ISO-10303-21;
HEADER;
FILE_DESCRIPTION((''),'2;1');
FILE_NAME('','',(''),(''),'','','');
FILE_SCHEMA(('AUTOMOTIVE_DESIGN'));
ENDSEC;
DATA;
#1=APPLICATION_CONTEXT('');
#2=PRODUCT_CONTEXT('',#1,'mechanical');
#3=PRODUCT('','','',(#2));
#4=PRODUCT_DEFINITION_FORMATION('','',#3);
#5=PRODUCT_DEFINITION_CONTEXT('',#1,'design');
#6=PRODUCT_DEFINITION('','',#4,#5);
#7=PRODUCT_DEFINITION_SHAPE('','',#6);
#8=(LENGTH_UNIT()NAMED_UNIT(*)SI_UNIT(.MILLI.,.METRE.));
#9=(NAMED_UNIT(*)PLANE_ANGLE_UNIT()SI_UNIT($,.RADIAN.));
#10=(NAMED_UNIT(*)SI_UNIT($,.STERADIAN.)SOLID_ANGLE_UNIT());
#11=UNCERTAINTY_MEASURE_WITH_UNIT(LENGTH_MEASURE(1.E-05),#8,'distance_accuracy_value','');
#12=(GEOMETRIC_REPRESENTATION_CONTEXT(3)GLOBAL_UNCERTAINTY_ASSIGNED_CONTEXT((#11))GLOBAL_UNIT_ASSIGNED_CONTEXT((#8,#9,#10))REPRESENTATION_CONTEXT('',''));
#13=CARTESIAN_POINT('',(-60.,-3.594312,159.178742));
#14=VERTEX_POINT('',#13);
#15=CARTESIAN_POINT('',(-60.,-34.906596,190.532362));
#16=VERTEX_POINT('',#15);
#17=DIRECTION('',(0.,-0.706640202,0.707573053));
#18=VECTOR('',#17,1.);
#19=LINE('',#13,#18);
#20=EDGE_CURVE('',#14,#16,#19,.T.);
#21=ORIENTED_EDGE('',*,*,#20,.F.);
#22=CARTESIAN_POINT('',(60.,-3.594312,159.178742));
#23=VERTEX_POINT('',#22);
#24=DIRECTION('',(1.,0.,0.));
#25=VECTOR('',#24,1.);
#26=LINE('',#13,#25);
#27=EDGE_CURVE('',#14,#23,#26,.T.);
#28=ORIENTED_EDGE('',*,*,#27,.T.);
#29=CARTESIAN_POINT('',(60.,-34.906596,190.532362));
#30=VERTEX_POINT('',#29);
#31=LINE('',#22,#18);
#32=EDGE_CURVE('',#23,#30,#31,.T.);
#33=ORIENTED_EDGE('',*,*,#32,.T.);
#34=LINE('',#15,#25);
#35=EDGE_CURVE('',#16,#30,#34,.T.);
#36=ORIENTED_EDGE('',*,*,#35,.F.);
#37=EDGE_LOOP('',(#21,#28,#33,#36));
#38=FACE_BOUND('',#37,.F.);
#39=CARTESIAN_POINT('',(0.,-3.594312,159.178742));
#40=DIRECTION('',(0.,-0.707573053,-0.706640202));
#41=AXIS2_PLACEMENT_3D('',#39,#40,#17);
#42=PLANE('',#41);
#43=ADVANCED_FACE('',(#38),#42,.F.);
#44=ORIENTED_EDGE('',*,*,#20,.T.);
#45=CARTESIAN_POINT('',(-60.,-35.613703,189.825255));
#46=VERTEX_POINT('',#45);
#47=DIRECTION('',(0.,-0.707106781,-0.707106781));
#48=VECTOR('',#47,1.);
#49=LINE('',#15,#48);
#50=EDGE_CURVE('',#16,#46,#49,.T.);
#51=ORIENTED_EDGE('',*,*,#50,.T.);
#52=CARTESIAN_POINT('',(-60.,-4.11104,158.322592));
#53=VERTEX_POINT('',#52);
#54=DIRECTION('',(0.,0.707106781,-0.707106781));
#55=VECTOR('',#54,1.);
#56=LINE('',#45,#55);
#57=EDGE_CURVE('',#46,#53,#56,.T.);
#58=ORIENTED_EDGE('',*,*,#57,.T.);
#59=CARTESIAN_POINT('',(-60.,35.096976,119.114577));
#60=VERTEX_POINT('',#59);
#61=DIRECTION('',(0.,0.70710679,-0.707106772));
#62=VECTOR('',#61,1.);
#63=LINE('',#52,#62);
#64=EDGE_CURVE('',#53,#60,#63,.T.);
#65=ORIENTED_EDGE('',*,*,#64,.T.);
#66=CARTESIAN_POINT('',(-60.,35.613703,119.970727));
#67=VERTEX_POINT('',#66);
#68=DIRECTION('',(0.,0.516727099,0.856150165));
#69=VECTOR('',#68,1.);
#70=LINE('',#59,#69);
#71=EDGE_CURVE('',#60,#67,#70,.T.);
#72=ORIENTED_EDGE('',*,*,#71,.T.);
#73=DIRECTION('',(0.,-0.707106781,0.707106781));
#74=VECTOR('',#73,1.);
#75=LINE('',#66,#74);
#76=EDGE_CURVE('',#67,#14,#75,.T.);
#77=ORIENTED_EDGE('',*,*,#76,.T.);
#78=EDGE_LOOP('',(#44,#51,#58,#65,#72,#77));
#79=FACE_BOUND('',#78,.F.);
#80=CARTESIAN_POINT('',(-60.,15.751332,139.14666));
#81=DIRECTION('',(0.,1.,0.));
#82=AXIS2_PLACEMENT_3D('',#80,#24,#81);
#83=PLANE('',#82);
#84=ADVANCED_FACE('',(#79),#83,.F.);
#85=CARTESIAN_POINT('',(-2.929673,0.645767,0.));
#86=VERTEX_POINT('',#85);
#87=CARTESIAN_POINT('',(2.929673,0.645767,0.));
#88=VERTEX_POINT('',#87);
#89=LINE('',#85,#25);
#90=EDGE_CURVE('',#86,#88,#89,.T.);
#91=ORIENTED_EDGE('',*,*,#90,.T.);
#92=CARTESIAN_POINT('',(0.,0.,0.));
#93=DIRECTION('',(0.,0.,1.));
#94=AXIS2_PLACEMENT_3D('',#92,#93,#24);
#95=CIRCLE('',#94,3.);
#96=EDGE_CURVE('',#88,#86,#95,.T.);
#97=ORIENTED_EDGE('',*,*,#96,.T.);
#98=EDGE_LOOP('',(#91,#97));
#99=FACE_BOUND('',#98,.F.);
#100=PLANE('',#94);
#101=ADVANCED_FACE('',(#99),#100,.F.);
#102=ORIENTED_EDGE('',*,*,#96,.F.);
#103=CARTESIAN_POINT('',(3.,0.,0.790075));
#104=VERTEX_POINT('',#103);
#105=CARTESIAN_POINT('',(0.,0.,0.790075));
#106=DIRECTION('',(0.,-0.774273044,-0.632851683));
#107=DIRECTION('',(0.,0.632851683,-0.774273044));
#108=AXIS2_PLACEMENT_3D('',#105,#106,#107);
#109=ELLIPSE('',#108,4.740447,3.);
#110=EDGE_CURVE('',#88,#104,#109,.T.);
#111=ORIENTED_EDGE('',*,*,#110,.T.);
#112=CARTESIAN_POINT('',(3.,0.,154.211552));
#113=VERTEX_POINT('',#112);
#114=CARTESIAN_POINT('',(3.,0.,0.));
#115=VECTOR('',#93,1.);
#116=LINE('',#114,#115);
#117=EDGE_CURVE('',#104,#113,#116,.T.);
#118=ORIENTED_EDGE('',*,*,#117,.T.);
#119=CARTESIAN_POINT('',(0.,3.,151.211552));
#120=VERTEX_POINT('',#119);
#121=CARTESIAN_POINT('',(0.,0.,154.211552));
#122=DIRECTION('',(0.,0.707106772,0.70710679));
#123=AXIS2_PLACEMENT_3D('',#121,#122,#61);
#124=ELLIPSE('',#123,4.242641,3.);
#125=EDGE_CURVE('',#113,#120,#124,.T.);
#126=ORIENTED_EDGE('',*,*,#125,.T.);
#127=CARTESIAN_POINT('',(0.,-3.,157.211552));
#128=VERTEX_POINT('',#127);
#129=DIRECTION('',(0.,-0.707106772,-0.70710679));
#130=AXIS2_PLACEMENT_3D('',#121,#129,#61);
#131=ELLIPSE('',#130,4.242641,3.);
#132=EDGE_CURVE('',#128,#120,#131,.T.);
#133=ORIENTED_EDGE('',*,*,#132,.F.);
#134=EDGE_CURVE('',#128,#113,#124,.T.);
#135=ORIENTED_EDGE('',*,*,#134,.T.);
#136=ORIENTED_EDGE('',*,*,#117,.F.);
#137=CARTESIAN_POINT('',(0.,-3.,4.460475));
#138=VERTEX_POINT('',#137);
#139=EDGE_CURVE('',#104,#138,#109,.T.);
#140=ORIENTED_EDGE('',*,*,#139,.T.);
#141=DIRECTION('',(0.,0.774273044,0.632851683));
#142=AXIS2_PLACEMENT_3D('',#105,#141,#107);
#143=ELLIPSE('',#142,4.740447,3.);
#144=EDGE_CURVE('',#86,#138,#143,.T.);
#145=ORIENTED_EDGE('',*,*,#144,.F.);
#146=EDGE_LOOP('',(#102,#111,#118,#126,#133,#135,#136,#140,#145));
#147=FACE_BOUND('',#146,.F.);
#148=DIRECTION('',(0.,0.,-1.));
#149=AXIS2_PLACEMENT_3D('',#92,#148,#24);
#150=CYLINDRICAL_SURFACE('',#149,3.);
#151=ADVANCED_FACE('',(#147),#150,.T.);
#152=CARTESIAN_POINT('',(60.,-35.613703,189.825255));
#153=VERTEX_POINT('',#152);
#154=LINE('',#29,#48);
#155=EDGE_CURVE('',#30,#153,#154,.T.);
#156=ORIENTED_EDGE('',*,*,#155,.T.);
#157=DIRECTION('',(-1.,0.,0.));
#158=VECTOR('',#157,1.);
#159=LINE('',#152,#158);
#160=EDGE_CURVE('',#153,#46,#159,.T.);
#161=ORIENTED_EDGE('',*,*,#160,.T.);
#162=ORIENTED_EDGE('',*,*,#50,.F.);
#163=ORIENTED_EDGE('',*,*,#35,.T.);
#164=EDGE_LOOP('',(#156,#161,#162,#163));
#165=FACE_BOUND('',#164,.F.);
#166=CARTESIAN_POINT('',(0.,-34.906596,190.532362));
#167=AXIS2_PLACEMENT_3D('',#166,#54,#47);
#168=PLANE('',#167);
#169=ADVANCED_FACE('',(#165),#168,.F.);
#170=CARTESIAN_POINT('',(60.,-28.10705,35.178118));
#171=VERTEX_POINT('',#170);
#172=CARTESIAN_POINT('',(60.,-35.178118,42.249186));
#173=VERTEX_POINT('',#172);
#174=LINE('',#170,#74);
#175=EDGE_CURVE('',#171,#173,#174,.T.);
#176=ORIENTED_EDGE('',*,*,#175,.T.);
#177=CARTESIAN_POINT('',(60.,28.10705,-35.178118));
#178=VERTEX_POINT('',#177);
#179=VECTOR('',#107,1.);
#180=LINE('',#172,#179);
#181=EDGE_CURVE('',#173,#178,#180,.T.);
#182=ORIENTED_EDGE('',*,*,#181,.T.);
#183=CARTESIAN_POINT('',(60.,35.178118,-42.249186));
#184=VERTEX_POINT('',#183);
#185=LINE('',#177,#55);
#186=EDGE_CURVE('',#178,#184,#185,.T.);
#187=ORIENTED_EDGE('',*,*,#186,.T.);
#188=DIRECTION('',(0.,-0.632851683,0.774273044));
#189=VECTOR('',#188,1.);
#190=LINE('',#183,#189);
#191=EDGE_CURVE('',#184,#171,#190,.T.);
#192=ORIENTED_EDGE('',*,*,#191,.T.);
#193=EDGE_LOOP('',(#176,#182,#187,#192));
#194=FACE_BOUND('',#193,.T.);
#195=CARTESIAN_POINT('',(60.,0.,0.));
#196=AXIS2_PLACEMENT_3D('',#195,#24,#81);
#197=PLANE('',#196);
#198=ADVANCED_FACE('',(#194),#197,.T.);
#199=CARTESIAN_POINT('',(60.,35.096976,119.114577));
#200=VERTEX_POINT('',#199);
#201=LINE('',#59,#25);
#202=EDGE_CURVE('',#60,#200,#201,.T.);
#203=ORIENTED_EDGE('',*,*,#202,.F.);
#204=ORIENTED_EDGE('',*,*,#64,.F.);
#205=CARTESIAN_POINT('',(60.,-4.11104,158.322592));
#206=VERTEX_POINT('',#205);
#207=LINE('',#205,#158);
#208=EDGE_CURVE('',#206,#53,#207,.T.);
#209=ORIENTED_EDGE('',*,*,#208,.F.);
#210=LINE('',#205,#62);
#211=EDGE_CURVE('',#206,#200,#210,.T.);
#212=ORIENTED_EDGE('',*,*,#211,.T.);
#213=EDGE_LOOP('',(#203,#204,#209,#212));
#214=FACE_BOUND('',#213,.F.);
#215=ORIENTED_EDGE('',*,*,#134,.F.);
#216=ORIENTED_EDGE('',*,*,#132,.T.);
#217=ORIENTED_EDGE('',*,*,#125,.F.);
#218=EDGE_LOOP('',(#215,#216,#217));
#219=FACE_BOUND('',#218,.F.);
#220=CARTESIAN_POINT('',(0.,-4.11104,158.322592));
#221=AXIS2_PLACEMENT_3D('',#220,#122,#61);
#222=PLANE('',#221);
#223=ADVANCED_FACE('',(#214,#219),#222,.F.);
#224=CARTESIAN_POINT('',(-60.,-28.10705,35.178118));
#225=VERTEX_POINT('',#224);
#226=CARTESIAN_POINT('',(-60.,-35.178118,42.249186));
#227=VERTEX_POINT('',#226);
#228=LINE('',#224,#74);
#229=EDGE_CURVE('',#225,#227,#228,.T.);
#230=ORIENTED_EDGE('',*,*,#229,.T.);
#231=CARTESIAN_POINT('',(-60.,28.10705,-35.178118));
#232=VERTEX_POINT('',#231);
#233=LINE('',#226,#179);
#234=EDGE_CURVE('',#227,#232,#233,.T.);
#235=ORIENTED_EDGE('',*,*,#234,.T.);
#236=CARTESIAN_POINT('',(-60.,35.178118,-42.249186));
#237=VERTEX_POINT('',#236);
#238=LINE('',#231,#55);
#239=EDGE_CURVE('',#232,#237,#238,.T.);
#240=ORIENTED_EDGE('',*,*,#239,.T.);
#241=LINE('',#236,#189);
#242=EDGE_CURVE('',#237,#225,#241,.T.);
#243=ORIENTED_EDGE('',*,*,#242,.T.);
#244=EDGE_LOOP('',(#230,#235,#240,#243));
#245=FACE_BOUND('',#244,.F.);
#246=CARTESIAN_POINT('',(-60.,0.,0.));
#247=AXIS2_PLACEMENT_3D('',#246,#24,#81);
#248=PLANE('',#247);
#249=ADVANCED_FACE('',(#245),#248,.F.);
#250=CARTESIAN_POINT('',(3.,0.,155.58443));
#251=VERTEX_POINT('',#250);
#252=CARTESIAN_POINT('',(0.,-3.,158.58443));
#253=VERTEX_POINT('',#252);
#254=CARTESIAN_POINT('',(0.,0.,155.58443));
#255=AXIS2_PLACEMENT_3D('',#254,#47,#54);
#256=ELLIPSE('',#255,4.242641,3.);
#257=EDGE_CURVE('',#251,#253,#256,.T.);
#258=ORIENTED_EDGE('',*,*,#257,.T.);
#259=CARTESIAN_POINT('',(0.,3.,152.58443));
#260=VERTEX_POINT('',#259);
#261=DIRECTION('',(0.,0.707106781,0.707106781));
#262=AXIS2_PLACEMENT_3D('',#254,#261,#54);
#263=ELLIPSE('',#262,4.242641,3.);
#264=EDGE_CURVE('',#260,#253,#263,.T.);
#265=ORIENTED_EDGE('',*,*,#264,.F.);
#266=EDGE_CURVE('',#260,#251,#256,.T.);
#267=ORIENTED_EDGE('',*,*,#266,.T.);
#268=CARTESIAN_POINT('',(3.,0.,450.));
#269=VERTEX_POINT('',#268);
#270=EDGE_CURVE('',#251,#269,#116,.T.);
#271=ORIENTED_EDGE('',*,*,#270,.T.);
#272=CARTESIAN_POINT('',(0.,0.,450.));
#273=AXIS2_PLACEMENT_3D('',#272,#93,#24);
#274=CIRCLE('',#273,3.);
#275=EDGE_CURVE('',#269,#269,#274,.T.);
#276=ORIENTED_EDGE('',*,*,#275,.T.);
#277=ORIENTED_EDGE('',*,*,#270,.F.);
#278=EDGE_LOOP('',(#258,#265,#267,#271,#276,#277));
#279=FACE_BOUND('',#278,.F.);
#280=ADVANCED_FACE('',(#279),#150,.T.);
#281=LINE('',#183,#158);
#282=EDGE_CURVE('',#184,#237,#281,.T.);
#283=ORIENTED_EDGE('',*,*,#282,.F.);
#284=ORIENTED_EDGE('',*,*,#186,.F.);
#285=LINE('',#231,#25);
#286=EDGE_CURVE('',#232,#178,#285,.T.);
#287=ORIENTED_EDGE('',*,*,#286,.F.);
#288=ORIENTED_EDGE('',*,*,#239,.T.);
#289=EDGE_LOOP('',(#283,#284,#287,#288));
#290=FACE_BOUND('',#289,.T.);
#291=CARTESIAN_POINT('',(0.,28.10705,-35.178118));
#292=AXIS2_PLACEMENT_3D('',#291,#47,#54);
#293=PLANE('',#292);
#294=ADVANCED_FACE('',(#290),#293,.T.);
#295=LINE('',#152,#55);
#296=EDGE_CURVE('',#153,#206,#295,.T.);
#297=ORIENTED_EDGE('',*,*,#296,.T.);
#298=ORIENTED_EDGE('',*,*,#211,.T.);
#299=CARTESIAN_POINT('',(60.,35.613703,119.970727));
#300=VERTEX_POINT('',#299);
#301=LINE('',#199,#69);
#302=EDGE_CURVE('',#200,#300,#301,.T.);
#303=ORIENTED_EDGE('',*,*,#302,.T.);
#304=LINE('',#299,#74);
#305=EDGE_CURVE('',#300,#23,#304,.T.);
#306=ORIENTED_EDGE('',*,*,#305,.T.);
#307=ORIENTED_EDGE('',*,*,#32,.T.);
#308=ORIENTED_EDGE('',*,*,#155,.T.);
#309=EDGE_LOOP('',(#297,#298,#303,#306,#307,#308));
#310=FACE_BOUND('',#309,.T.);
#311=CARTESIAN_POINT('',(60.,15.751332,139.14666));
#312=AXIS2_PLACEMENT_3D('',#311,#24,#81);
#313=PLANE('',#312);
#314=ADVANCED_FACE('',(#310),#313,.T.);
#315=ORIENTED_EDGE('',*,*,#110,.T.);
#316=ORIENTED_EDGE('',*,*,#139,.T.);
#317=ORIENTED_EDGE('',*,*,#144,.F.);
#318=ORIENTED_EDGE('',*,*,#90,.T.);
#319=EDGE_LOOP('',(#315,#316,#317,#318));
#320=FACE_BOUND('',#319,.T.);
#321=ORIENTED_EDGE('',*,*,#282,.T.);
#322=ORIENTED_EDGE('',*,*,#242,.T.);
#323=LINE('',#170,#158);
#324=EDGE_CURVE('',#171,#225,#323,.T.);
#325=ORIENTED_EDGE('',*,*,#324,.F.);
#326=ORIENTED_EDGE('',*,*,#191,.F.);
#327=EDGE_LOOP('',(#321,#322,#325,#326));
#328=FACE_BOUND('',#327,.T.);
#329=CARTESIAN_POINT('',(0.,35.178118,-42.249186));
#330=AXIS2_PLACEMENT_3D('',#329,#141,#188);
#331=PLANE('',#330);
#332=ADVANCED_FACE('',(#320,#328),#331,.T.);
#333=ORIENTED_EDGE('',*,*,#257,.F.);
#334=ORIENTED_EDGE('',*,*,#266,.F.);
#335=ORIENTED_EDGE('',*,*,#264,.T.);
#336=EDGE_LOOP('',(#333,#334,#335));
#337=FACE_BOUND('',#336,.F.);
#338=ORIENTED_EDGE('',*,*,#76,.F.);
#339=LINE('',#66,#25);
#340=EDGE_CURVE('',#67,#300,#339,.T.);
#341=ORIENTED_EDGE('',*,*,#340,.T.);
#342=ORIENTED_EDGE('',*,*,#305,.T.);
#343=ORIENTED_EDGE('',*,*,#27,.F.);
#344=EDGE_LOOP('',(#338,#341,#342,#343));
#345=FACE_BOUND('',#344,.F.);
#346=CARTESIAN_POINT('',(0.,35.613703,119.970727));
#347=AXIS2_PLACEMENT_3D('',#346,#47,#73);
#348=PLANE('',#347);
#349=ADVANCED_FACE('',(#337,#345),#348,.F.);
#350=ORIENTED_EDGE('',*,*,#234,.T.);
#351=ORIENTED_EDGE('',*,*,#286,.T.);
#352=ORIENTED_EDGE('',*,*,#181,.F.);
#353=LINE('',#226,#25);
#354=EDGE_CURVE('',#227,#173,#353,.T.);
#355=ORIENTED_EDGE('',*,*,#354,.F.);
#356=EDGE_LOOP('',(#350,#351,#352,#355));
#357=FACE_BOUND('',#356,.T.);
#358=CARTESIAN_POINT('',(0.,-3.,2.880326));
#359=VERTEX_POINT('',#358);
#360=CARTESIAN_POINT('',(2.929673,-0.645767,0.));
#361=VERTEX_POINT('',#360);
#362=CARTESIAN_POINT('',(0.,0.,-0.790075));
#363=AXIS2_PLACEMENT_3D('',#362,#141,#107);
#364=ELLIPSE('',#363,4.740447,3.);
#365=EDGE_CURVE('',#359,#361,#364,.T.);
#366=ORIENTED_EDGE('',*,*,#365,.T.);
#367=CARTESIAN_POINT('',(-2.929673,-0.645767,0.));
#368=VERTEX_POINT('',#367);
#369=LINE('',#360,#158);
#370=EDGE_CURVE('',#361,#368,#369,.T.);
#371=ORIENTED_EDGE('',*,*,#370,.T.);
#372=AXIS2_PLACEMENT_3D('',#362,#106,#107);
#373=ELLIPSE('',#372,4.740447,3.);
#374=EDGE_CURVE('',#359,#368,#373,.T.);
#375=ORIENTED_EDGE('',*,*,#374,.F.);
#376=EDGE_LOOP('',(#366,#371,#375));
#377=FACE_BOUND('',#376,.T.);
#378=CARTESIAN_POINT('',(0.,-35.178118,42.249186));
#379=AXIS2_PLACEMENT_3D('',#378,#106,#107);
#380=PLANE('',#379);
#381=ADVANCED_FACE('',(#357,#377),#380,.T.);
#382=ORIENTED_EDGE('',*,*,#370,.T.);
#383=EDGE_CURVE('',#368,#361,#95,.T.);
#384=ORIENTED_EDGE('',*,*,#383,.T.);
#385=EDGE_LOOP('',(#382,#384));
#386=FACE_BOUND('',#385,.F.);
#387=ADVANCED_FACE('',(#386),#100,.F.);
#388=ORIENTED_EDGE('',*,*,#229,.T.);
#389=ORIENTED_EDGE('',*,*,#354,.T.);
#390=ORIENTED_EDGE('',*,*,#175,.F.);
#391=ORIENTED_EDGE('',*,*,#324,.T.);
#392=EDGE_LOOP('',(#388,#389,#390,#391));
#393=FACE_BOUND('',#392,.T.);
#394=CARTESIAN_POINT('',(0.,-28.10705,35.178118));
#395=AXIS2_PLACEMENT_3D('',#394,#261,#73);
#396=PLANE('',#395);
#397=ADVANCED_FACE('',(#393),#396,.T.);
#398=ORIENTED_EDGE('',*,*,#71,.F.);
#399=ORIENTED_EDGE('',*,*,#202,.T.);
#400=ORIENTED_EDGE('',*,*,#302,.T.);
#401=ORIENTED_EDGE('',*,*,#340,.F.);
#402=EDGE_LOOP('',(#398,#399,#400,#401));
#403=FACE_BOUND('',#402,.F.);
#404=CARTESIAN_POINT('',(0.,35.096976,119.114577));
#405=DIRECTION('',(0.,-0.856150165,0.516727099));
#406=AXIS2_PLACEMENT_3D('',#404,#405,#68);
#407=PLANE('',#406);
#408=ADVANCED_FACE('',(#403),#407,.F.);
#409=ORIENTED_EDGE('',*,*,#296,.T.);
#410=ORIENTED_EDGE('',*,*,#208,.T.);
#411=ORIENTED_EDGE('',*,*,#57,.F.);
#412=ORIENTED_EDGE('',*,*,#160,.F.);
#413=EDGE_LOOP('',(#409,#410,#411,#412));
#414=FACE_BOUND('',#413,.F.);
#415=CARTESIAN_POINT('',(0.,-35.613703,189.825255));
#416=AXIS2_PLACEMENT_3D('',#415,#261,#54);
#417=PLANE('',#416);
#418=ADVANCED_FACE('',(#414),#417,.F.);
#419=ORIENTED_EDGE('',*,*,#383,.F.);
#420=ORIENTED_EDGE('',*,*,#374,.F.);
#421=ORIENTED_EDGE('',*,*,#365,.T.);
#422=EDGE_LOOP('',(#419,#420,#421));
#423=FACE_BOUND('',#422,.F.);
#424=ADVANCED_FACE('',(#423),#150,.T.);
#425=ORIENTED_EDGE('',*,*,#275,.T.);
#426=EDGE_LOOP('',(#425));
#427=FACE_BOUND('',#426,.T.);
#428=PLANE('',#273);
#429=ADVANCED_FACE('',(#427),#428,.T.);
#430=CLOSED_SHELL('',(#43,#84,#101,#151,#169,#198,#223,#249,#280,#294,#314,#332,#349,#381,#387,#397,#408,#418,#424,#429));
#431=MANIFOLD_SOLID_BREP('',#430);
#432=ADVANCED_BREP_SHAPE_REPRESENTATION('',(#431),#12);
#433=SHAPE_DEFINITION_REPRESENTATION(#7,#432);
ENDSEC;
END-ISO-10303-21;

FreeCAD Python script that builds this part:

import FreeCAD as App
import Part
import Sketcher

V = App.Vector
Q = App.Units.Quantity

doc = App.newDocument("Part")
body = doc.addObject("PartDesign::Body", "Body")

sketch1 = doc.addObject("Sketcher::SketchObject", "Sketch")
body.addObject(sketch1)
sketch1.AttachmentSupport = (doc.XY_Plane, [""])
sketch1.MapMode = "FlatFace"
sketch1.addGeometry(Part.Circle(V(0, 0, 0), V(0, 0, 1), 3), False)
sketch1.addConstraint([
    Sketcher.Constraint("Coincident", 0, 3, -1, 1),
    Sketcher.Constraint("Diameter", 0, Q("6 mm")),
])
pad1 = doc.addObject("PartDesign::Pad", "Pad")
body.addObject(pad1)
pad1.Profile = sketch1
pad1.Length = 450

sketch2 = doc.addObject("Sketcher::SketchObject", "Sketch001")
body.addObject(sketch2)
sketch2.AttachmentSupport = (doc.YZ_Plane, [""])
sketch2.MapMode = "FlatFace"
sketch2.addGeometry([
    Part.LineSegment(V(-28.1, 35.2, 0), V(-35.2, 42.2, 0)),
    Part.LineSegment(V(-35.2, 42.2, 0), V(28.1, -35.2, 0)),
    Part.LineSegment(V(28.1, -35.2, 0), V(35.2, -42.2, 0)),
    Part.LineSegment(V(35.2, -42.2, 0), V(-28.1, 35.2, 0)),
    Part.LineSegment(V(35.1, 119.1, 0), V(35.6, 120, 0)),
    Part.LineSegment(V(35.6, 120, 0), V(-3.6, 159.2, 0)),
    Part.LineSegment(V(-3.6, 159.2, 0), V(-34.9, 190.5, 0)),
    Part.LineSegment(V(-34.9, 190.5, 0), V(-35.6, 189.8, 0)),
    Part.LineSegment(V(-35.6, 189.8, 0), V(-4.1, 158.3, 0)),
    Part.LineSegment(V(-4.1, 158.3, 0), V(35.1, 119.1, 0)),
], False)
sketch2.addConstraint([
    Sketcher.Constraint("Coincident", 0, 2, 1, 1),
    Sketcher.Constraint("Coincident", 1, 2, 2, 1),
    Sketcher.Constraint("Coincident", 2, 2, 3, 1),
    Sketcher.Constraint("Coincident", 3, 2, 0, 1),
    Sketcher.Constraint("Coincident", 4, 2, 5, 1),
    Sketcher.Constraint("Coincident", 5, 2, 6, 1),
    Sketcher.Constraint("Coincident", 6, 2, 7, 1),
    Sketcher.Constraint("Coincident", 7, 2, 8, 1),
    Sketcher.Constraint("Coincident", 8, 2, 9, 1),
    Sketcher.Constraint("Coincident", 9, 2, 4, 1),
    Sketcher.Constraint("Symmetric", 0, 2, 2, 2, -1, 1),
    Sketcher.Constraint("Symmetric", 1, 2, 3, 2, -1, 1),
    Sketcher.Constraint("Parallel", 2, 5),
    Sketcher.Constraint("Perpendicular", 5, 7),
    Sketcher.Constraint("Perpendicular", 7, 8),
    Sketcher.Constraint("Parallel", 8, 9),
    Sketcher.Constraint("Equal", 4, 7),
    Sketcher.Constraint("Equal", 5, 9),
    Sketcher.Constraint("Angle", 0, Q("135 deg")),
    Sketcher.Constraint("Distance", 0, Q("10 mm")),
    Sketcher.Constraint("Distance", 1, Q("99.999999 mm")),
    Sketcher.Constraint("Distance", 4, Q("1 mm")),
    Sketcher.Constraint("DistanceX", 3, 2, 1, 2, Q("56.2141 mm")),
    Sketcher.Constraint("DistanceX", 6, 2, 4, 2, Q("70.520299 mm")),
    Sketcher.Constraint("DistanceX", 5, 2, -1, 1, Q("3.594312 mm")),
    Sketcher.Constraint("DistanceY", -1, 1, 5, 2, Q("159.178742 mm")),
    Sketcher.Constraint("DistanceY", -1, 1, 6, 2, Q("190.532362 mm")),
    Sketcher.Constraint("DistanceX", 8, 2, -1, 1, Q("4.11104 mm")),
])
pad2 = doc.addObject("PartDesign::Pad", "Pad001")
body.addObject(pad2)
pad2.Profile = sketch2
pad2.Type = "TwoLengths"
pad2.Length = 60
pad2.Length2 = 60

doc.recompute()
